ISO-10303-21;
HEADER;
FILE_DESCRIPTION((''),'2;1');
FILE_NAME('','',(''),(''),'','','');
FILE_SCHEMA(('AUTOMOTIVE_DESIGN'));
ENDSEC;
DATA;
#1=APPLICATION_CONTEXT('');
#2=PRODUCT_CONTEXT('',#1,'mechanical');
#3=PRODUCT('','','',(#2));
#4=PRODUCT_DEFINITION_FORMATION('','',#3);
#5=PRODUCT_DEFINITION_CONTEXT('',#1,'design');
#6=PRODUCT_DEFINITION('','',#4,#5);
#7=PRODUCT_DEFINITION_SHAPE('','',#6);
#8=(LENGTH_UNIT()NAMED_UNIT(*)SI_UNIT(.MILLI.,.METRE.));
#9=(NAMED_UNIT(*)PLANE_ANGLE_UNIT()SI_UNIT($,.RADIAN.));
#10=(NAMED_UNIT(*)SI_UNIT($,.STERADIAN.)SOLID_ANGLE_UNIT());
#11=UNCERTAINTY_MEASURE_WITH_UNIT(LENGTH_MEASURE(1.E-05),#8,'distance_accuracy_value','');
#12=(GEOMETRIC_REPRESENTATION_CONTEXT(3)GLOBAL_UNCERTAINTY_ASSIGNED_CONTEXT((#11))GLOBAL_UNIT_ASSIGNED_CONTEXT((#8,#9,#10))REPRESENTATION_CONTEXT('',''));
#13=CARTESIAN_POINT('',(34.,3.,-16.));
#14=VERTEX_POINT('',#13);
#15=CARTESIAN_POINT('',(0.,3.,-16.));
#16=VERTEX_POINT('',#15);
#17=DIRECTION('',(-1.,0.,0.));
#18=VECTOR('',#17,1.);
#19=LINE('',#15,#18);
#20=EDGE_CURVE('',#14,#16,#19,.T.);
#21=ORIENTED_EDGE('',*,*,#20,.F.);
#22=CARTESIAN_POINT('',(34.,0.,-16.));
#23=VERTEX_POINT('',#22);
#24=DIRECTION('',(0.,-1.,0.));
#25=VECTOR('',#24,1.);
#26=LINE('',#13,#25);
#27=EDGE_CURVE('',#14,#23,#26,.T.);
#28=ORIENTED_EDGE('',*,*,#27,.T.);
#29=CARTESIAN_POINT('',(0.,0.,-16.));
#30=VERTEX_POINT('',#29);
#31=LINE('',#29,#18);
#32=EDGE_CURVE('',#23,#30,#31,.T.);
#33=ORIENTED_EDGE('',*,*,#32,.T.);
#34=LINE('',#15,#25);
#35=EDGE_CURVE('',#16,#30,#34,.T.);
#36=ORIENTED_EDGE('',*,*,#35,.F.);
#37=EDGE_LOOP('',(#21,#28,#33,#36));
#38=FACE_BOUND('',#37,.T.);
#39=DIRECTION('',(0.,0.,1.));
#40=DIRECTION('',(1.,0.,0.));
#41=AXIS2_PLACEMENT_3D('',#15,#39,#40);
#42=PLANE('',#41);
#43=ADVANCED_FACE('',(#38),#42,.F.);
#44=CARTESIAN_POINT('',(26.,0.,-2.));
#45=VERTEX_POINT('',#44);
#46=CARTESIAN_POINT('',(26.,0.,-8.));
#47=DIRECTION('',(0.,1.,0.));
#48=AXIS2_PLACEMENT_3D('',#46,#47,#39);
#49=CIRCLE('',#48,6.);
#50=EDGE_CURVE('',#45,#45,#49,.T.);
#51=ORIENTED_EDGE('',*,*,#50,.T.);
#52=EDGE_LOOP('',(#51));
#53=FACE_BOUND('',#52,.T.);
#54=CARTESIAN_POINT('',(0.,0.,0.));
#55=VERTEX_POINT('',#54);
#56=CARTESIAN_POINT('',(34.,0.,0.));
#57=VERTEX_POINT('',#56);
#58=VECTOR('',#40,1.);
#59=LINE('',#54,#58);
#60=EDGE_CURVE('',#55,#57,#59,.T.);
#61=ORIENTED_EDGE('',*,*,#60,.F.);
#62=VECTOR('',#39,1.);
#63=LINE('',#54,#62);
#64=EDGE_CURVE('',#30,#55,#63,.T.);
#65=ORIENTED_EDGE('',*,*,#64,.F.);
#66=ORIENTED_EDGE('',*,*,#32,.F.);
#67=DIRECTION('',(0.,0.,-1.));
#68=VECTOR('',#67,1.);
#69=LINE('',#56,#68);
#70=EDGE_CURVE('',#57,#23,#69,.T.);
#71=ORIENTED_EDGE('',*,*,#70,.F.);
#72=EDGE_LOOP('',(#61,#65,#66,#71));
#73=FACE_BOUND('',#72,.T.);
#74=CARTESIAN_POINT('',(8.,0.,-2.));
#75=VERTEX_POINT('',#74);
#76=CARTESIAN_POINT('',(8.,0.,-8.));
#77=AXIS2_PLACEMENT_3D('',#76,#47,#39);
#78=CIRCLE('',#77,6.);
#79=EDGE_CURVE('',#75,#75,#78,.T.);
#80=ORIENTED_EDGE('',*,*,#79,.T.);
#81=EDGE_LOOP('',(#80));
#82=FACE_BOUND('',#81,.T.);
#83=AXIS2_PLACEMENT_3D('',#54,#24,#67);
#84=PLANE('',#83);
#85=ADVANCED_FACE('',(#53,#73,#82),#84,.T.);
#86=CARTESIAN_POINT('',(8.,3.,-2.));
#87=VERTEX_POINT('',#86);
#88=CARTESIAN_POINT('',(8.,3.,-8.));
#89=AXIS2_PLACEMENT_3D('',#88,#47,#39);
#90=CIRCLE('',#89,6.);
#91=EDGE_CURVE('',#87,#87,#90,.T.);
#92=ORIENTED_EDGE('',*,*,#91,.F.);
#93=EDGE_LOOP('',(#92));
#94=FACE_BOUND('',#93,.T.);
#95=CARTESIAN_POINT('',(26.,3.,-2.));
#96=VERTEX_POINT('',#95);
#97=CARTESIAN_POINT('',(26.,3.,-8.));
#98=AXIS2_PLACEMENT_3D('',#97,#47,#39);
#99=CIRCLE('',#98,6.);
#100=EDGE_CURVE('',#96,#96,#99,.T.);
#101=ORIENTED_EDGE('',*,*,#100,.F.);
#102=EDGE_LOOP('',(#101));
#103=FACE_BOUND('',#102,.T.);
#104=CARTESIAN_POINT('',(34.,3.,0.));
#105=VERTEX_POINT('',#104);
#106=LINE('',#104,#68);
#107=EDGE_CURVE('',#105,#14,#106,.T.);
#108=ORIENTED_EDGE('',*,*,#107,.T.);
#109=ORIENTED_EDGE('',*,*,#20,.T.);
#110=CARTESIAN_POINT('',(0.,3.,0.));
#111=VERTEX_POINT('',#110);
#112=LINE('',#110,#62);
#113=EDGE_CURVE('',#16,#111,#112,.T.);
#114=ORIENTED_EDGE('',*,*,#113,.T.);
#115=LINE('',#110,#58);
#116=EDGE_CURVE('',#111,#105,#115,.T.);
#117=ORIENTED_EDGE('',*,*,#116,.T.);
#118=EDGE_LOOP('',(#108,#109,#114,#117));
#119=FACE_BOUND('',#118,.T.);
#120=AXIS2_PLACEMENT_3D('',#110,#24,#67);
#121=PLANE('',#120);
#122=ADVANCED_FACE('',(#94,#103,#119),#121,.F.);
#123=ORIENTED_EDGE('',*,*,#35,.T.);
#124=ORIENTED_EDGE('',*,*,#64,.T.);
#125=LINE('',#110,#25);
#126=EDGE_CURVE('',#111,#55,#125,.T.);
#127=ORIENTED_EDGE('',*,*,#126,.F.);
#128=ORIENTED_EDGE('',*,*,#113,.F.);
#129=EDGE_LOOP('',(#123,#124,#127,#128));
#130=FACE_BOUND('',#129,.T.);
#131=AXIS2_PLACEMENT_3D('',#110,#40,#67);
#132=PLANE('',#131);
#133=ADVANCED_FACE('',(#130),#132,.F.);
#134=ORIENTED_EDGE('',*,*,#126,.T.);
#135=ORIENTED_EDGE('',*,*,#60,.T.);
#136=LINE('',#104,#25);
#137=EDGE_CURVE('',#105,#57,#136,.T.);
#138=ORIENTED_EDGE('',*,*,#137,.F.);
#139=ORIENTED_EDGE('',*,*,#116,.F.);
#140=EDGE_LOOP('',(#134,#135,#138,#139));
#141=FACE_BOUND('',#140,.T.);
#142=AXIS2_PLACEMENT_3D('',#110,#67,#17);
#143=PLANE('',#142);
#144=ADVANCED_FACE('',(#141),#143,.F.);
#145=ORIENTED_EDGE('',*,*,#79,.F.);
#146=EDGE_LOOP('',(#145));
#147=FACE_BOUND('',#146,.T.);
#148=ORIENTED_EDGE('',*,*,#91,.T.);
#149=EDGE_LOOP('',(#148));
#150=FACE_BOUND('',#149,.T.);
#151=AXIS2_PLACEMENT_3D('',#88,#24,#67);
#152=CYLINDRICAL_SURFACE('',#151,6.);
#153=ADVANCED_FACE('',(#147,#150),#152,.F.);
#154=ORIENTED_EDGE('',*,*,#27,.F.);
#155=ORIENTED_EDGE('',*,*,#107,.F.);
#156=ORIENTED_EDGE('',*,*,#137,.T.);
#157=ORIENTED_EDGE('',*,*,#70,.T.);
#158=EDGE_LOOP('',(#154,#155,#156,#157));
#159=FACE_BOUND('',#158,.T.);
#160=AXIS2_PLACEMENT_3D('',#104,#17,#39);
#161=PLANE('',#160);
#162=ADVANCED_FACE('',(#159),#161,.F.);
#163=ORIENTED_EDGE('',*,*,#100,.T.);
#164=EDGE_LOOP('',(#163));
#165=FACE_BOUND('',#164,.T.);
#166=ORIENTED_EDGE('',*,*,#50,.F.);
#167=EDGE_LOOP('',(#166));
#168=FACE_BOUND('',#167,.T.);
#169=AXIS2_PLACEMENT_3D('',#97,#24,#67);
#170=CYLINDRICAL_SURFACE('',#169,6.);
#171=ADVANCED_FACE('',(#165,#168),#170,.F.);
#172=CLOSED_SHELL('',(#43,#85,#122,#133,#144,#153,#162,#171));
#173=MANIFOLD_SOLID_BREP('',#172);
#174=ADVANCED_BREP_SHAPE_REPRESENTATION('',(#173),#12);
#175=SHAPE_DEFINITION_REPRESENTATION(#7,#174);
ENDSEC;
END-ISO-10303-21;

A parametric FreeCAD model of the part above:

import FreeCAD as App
import Part
import Sketcher
from FreeCAD import Vector


def add_polygon(sketch, points):
    """Adds a closed chain of lines whose ends are joined by coincident constraints."""
    first, n = sketch.GeometryCount, len(points)
    for a, b in zip(points, points[1:] + points[:1]):
        sketch.addGeometry(Part.LineSegment(App.Vector(*a, 0), App.Vector(*b, 0)), False)
    for i in range(n):
        sketch.addConstraint(Sketcher.Constraint("Coincident", first + i, 2, first + (i + 1) % n, 1))

doc = App.newDocument("Part")
body = doc.addObject("PartDesign::Body", "Body")

# Sketch on XZ plane
sketch1 = body.newObject("Sketcher::SketchObject", "Sketch")
sketch1.AttachmentSupport = (doc.getObject("XZ_Plane"), [""])
sketch1.MapMode = "FlatFace"
add_polygon(sketch1, [(0, -16), (0, 0), (34, 0), (34, -16)])  # lines 0-3
sketch1.addGeometry(Part.Circle(Vector(8, -8, 0), Vector(0, 0, 1), 6), False)  # 4
sketch1.addGeometry(Part.Circle(Vector(26, -8, 0), Vector(0, 0, 1), 6), False)  # 5
sketch1.addConstraint([
    Sketcher.Constraint("Vertical", 0),
    Sketcher.Constraint("Horizontal", 1),
    Sketcher.Constraint("Vertical", 2),
    Sketcher.Constraint("Horizontal", 3),
    Sketcher.Constraint("Coincident", 0, 2, -1, 1),
    Sketcher.Constraint("Equal", 4, 5),
    Sketcher.Constraint("Horizontal", 4, 3, 5, 3),
    Sketcher.Constraint("Diameter", 4, 12.0),
    Sketcher.Constraint("DistanceX", 1, 1, 1, 2, 34.0),
    Sketcher.Constraint("DistanceY", 0, 1, 0, 2, 16.0),
    Sketcher.Constraint("DistanceX", -1, 1, 4, 3, 8.0),
    Sketcher.Constraint("DistanceY", 4, 3, -1, 1, 8.0),
    Sketcher.Constraint("DistanceX", -1, 1, 5, 3, 26.0),
])
pad1 = body.newObject("PartDesign::Pad", "Pad")
pad1.Profile = sketch1
pad1.Length = 3
pad1.Reversed = True

doc.recompute()
